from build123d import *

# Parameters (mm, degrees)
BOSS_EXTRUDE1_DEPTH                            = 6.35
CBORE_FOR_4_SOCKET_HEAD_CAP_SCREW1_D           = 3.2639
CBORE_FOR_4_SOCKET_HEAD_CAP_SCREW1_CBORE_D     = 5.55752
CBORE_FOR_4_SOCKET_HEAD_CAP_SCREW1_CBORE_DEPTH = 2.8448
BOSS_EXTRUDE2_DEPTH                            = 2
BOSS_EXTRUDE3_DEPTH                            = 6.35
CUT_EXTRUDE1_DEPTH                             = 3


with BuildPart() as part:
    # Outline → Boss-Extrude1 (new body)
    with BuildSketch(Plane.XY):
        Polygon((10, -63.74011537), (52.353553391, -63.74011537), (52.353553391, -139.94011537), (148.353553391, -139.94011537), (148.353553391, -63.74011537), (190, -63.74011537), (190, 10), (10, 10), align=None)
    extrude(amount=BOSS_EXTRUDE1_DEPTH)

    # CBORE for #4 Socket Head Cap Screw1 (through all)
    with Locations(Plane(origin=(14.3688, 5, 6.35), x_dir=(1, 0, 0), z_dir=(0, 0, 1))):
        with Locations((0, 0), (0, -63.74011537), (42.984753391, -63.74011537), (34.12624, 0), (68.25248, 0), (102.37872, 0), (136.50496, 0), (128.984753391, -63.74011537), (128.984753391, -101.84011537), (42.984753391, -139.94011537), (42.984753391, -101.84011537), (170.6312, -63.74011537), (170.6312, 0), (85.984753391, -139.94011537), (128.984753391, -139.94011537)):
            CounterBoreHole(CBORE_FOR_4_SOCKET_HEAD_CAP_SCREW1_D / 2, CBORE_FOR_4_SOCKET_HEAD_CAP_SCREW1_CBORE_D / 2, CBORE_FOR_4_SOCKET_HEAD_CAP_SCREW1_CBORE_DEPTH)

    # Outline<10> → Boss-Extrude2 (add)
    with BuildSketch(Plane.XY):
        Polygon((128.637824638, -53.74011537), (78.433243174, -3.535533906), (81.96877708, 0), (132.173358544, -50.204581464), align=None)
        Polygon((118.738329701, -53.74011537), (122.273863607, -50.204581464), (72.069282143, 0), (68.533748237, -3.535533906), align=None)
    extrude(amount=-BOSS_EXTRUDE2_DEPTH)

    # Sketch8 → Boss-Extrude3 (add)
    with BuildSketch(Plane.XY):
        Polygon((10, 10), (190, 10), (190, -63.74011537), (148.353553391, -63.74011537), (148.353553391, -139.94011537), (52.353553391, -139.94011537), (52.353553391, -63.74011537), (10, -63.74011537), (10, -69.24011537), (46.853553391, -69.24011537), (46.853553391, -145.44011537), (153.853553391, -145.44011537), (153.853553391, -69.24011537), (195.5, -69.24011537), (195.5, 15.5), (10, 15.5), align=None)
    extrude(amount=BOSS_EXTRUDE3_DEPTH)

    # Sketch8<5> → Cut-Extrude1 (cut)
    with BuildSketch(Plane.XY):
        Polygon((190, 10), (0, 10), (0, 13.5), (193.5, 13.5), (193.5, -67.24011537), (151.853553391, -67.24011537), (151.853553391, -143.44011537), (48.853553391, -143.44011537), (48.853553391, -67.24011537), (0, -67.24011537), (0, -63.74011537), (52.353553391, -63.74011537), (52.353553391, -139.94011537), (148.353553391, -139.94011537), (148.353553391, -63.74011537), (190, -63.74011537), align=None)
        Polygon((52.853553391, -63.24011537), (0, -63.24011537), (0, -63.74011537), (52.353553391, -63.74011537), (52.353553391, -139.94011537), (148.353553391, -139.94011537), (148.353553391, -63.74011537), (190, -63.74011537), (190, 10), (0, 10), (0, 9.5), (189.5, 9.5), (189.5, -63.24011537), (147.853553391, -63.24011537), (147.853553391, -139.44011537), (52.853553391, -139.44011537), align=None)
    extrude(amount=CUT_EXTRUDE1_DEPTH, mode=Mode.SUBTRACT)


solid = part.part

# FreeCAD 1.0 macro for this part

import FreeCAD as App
import Part
import Sketcher

V = App.Vector
Q = App.Units.Quantity

doc = App.newDocument("Part")
body = doc.addObject("PartDesign::Body", "Body")

# Sketch on XY plane
sketch1 = body.newObject("Sketcher::SketchObject", "Sketch")
sketch1.AttachmentSupport = (doc.getObject("XY_Plane"), [""])
sketch1.MapMode = "FlatFace"
sketch1.addGeometry([
    Part.LineSegment(V(10, -64, 0), V(52, -64, 0)),  # 0
    Part.LineSegment(V(52, -64, 0), V(52, -140, 0)),  # 1
    Part.LineSegment(V(52, -140, 0), V(148, -140, 0)),  # 2
    Part.LineSegment(V(148, -140, 0), V(148, -64, 0)),  # 3
    Part.LineSegment(V(148, -64, 0), V(190, -64, 0)),  # 4
    Part.LineSegment(V(190, -64, 0), V(190, 10, 0)),  # 5
    Part.LineSegment(V(190, 10, 0), V(10, 10, 0)),  # 6
    Part.LineSegment(V(10, 10, 0), V(10, -64, 0)),  # 7
], False)
sketch1.addConstraint([
    Sketcher.Constraint("Coincident", 0, 2, 1, 1),
    Sketcher.Constraint("Coincident", 1, 2, 2, 1),
    Sketcher.Constraint("Coincident", 2, 2, 3, 1),
    Sketcher.Constraint("Coincident", 3, 2, 4, 1),
    Sketcher.Constraint("Coincident", 4, 2, 5, 1),
    Sketcher.Constraint("Coincident", 5, 2, 6, 1),
    Sketcher.Constraint("Coincident", 6, 2, 7, 1),
    Sketcher.Constraint("Coincident", 7, 2, 0, 1),
    Sketcher.Constraint("Horizontal", 0),
    Sketcher.Constraint("Vertical", 1),
    Sketcher.Constraint("Horizontal", 2),
    Sketcher.Constraint("Vertical", 3),
    Sketcher.Constraint("Horizontal", 4),
    Sketcher.Constraint("Vertical", 5),
    Sketcher.Constraint("Horizontal", 6),
    Sketcher.Constraint("Vertical", 7),
    Sketcher.Constraint("Horizontal", 0, 2, 3, 2),
    Sketcher.Constraint("DistanceX", 2, 1, 2, 2, 96.0),
    Sketcher.Constraint("DistanceX", 6, 2, 6, 1, 180.0),
    Sketcher.Constraint("DistanceY", 1, 2, 1, 1, 76.2),
    Sketcher.Constraint("DistanceX", -1, 1, 4, 2, 190.0),
    Sketcher.Constraint("DistanceY", -1, 1, 5, 2, 10.0),
    Sketcher.Constraint("DistanceX", 0, 1, 0, 2, 42.353553),
    Sketcher.Constraint("DistanceY", 5, 1, 5, 2, 73.740115),
])
pad1 = body.newObject("PartDesign::Pad", "Pad")
pad1.Profile = sketch1
pad1.Length = 6.35

# Sketch on XY plane
sketch2 = body.newObject("Sketcher::SketchObject", "Sketch001")
sketch2.AttachmentSupport = (doc.getObject("XY_Plane"), [""])
sketch2.MapMode = "FlatFace"
sketch2.AttachmentOffset = App.Placement(V(0, 0, 6.35), App.Rotation())
sketch2.addGeometry([
    Part.Circle(V(14.4, 5, 0), V(0, 0, 1), 1.6),  # 0
    Part.Circle(V(14.4, -58.7, 0), V(0, 0, 1), 1.6),  # 1
    Part.Circle(V(57.4, -58.7, 0), V(0, 0, 1), 1.6),  # 2
    Part.Circle(V(48.5, 5, 0), V(0, 0, 1), 1.6),  # 3
    Part.Circle(V(82.6, 5, 0), V(0, 0, 1), 1.6),  # 4
    Part.Circle(V(116.7, 5, 0), V(0, 0, 1), 1.6),  # 5
    Part.Circle(V(150.9, 5, 0), V(0, 0, 1), 1.6),  # 6
    Part.Circle(V(143.4, -58.7, 0), V(0, 0, 1), 1.6),  # 7
    Part.Circle(V(143.4, -96.8, 0), V(0, 0, 1), 1.6),  # 8
    Part.Circle(V(57.4, -134.9, 0), V(0, 0, 1), 1.6),  # 9
    Part.Circle(V(57.4, -96.8, 0), V(0, 0, 1), 1.6),  # 10
    Part.Circle(V(185, -58.7, 0), V(0, 0, 1), 1.6),  # 11
    Part.Circle(V(185, 5, 0), V(0, 0, 1), 1.6),  # 12
    Part.Circle(V(100.4, -134.9, 0), V(0, 0, 1), 1.6),  # 13
    Part.Circle(V(143.4, -134.9, 0), V(0, 0, 1), 1.6),  # 14
], False)
sketch2.addConstraint([
    Sketcher.Constraint("Equal", 0, 1),
    Sketcher.Constraint("Equal", 1, 2),
    Sketcher.Constraint("Equal", 2, 3),
    Sketcher.Constraint("Equal", 3, 4),
    Sketcher.Constraint("Equal", 4, 5),
    Sketcher.Constraint("Equal", 5, 6),
    Sketcher.Constraint("Equal", 6, 7),
    Sketcher.Constraint("Equal", 7, 8),
    Sketcher.Constraint("Equal", 8, 9),
    Sketcher.Constraint("Equal", 9, 10),
    Sketcher.Constraint("Equal", 10, 11),
    Sketcher.Constraint("Equal", 11, 12),
    Sketcher.Constraint("Equal", 12, 13),
    Sketcher.Constraint("Equal", 13, 14),
    Sketcher.Constraint("Horizontal", 1, 3, 2, 3),
    Sketcher.Constraint("Horizontal", 0, 3, 3, 3),
    Sketcher.Constraint("Horizontal", 3, 3, 4, 3),
    Sketcher.Constraint("Horizontal", 4, 3, 5, 3),
    Sketcher.Constraint("Horizontal", 5, 3, 6, 3),
    Sketcher.Constraint("Horizontal", 2, 3, 7, 3),
    Sketcher.Constraint("Horizontal", 8, 3, 10, 3),
    Sketcher.Constraint("Horizontal", 7, 3, 11, 3),
    Sketcher.Constraint("Horizontal", 6, 3, 12, 3),
    Sketcher.Constraint("Horizontal", 9, 3, 13, 3),
    Sketcher.Constraint("Horizontal", 13, 3, 14, 3),
    Sketcher.Constraint("Vertical", 0, 3, 1, 3),
    Sketcher.Constraint("Vertical", 7, 3, 8, 3),
    Sketcher.Constraint("Vertical", 2, 3, 9, 3),
    Sketcher.Constraint("Vertical", 9, 3, 10, 3),
    Sketcher.Constraint("Vertical", 11, 3, 12, 3),
    Sketcher.Constraint("Vertical", 8, 3, 14, 3),
    Sketcher.Constraint("DistanceY", -1, 1, 0, 3, 5.0),
    Sketcher.Constraint("DistanceX", -1, 1, 11, 3, 185.0),
    Sketcher.Constraint("DistanceX", 2, 3, 7, 3, 86.0),
    Sketcher.Constraint("DistanceX", 9, 3, 13, 3, 43.0),
    Sketcher.Constraint("Diameter", 0, 3.2639),
    Sketcher.Constraint("DistanceY", 8, 3, 7, 3, 38.1),
    Sketcher.Constraint("DistanceY", 9, 3, 2, 3, 76.2),
    Sketcher.Constraint("DistanceX", -1, 1, 0, 3, 14.3688),
    Sketcher.Constraint("DistanceX", -1, 1, 3, 3, 48.49504),
    Sketcher.Constraint("DistanceX", -1, 1, 4, 3, 82.62128),
    Sketcher.Constraint("DistanceX", -1, 1, 5, 3, 116.74752),
    Sketcher.Constraint("DistanceX", -1, 1, 6, 3, 150.87376),
    Sketcher.Constraint("DistanceY", 1, 3, -1, 1, 58.740115),
    Sketcher.Constraint("DistanceX", -1, 1, 2, 3, 57.353553),
])
doc.recompute()
hole = body.newObject("PartDesign::Hole", "Hole")
hole.Profile = sketch2
hole.ThreadType = "None"
hole.Diameter = 3.2639
hole.DepthType = "ThroughAll"
hole.HoleCutType = "Counterbore"
hole.HoleCutDiameter = 5.55752
hole.HoleCutDepth = 2.8448

# Sketch on XY plane
sketch3 = body.newObject("Sketcher::SketchObject", "Sketch002")
sketch3.AttachmentSupport = (doc.getObject("XY_Plane"), [""])
sketch3.MapMode = "FlatFace"
sketch3.addGeometry([
    Part.LineSegment(V(78, -4, 0), V(129, -54, 0)),  # 0
    Part.LineSegment(V(129, -54, 0), V(132, -50, 0)),  # 1
    Part.LineSegment(V(132, -50, 0), V(82, 0, 0)),  # 2
    Part.LineSegment(V(82, 0, 0), V(78, -4, 0)),  # 3
    Part.LineSegment(V(119, -54, 0), V(122, -50, 0)),  # 4
    Part.LineSegment(V(122, -50, 0), V(72, 0, 0)),  # 5
    Part.LineSegment(V(72, 0, 0), V(69, -4, 0)),  # 6
    Part.LineSegment(V(69, -4, 0), V(119, -54, 0)),  # 7
], False)
sketch3.addConstraint([
    Sketcher.Constraint("Coincident", 0, 2, 1, 1),
    Sketcher.Constraint("Coincident", 1, 2, 2, 1),
    Sketcher.Constraint("Coincident", 2, 2, 3, 1),
    Sketcher.Constraint("Coincident", 3, 2, 0, 1),
    Sketcher.Constraint("Coincident", 4, 2, 5, 1),
    Sketcher.Constraint("Coincident", 5, 2, 6, 1),
    Sketcher.Constraint("Coincident", 6, 2, 7, 1),
    Sketcher.Constraint("Coincident", 7, 2, 4, 1),
    Sketcher.Constraint("PointOnObject", 2, 2, -1),
    Sketcher.Constraint("PointOnObject", 5, 2, -1),
    Sketcher.Constraint("Perpendicular", 0, 1),
    Sketcher.Constraint("Perpendicular", 1, 2),
    Sketcher.Constraint("Perpendicular", 2, 3),
    Sketcher.Constraint("Parallel", 3, 4),
    Sketcher.Constraint("Perpendicular", 4, 5),
    Sketcher.Constraint("Perpendicular", 5, 6),
    Sketcher.Constraint("Perpendicular", 6, 7),
    Sketcher.Constraint("Horizontal", 1, 2, 4, 2),
    Sketcher.Constraint("Horizontal", 3, 2, 6, 2),
    Sketcher.Constraint("Angle", 0, Q("-45 deg")),
    Sketcher.Constraint("Distance", 0, 71.0),
    Sketcher.Constraint("Distance", 1, 5.0),
    Sketcher.Constraint("DistanceX", -1, 1, 1, 2, 132.173359),
    Sketcher.Constraint("DistanceX", -1, 1, 6, 2, 68.533748),
])
pad2 = body.newObject("PartDesign::Pad", "Pad001")
pad2.Profile = sketch3
pad2.Length = 2
pad2.Reversed = True

# Sketch on XY plane
sketch4 = body.newObject("Sketcher::SketchObject", "Sketch003")
sketch4.AttachmentSupport = (doc.getObject("XY_Plane"), [""])
sketch4.MapMode = "FlatFace"
sketch4.addGeometry([
    Part.LineSegment(V(10, 10, 0), V(190, 10, 0)),  # 0
    Part.LineSegment(V(190, 10, 0), V(190, -64, 0)),  # 1
    Part.LineSegment(V(190, -64, 0), V(148, -64, 0)),  # 2
    Part.LineSegment(V(148, -64, 0), V(148, -140, 0)),  # 3
    Part.LineSegment(V(148, -140, 0), V(52, -140, 0)),  # 4
    Part.LineSegment(V(52, -140, 0), V(52, -64, 0)),  # 5
    Part.LineSegment(V(52, -64, 0), V(10, -64, 0)),  # 6
    Part.LineSegment(V(10, -64, 0), V(10, -69, 0)),  # 7
    Part.LineSegment(V(10, -69, 0), V(47, -69, 0)),  # 8
    Part.LineSegment(V(47, -69, 0), V(47, -145, 0)),  # 9
    Part.LineSegment(V(47, -145, 0), V(154, -145, 0)),  # 10
    Part.LineSegment(V(154, -145, 0), V(154, -69, 0)),  # 11
    Part.LineSegment(V(154, -69, 0), V(196, -69, 0)),  # 12
    Part.LineSegment(V(196, -69, 0), V(196, 16, 0)),  # 13
    Part.LineSegment(V(196, 16, 0), V(10, 16, 0)),  # 14
    Part.LineSegment(V(10, 16, 0), V(10, 10, 0)),  # 15
], False)
sketch4.addConstraint([
    Sketcher.Constraint("Coincident", 0, 2, 1, 1),
    Sketcher.Constraint("Coincident", 1, 2, 2, 1),
    Sketcher.Constraint("Coincident", 2, 2, 3, 1),
    Sketcher.Constraint("Coincident", 3, 2, 4, 1),
    Sketcher.Constraint("Coincident", 4, 2, 5, 1),
    Sketcher.Constraint("Coincident", 5, 2, 6, 1),
    Sketcher.Constraint("Coincident", 6, 2, 7, 1),
    Sketcher.Constraint("Coincident", 7, 2, 8, 1),
    Sketcher.Constraint("Coincident", 8, 2, 9, 1),
    Sketcher.Constraint("Coincident", 9, 2, 10, 1),
    Sketcher.Constraint("Coincident", 10, 2, 11, 1),
    Sketcher.Constraint("Coincident", 11, 2, 12, 1),
    Sketcher.Constraint("Coincident", 12, 2, 13, 1),
    Sketcher.Constraint("Coincident", 13, 2, 14, 1),
    Sketcher.Constraint("Coincident", 14, 2, 15, 1),
    Sketcher.Constraint("Coincident", 15, 2, 0, 1),
    Sketcher.Constraint("Horizontal", 0),
    Sketcher.Constraint("Vertical", 1),
    Sketcher.Constraint("Horizontal", 2),
    Sketcher.Constraint("Vertical", 3),
    Sketcher.Constraint("Horizontal", 4),
    Sketcher.Constraint("Vertical", 5),
    Sketcher.Constraint("Horizontal", 6),
    Sketcher.Constraint("Vertical", 7),
    Sketcher.Constraint("Horizontal", 8),
    Sketcher.Constraint("Vertical", 9),
    Sketcher.Constraint("Horizontal", 10),
    Sketcher.Constraint("Vertical", 11),
    Sketcher.Constraint("Horizontal", 12),
    Sketcher.Constraint("Vertical", 13),
    Sketcher.Constraint("Horizontal", 14),
    Sketcher.Constraint("Vertical", 15),
    Sketcher.Constraint("Horizontal", 2, 2, 5, 2),
    Sketcher.Constraint("Horizontal", 8, 2, 11, 2),
    Sketcher.Constraint("Vertical", 7, 2, 14, 2),
    Sketcher.Constraint("Equal", 2, 12),
    Sketcher.Constraint("Equal", 5, 9),
    Sketcher.Constraint("Equal", 7, 15),
    Sketcher.Constraint("DistanceX", 0, 1, 0, 2, 180.0),
    Sketcher.Constraint("DistanceX", 4, 2, 4, 1, 96.0),
    Sketcher.Constraint("DistanceX", 10, 1, 10, 2, 107.0),
    Sketcher.Constraint("DistanceX", 14, 2, 14, 1, 185.5),
    Sketcher.Constraint("DistanceY", 3, 2, 3, 1, 76.2),
    Sketcher.Constraint("DistanceY", 7, 2, 7, 1, 5.5),
    Sketcher.Constraint("DistanceX", -1, 1, 0, 2, 190.0),
    Sketcher.Constraint("DistanceY", -1, 1, 0, 2, 10.0),
    Sketcher.Constraint("DistanceX", 2, 2, 2, 1, 41.646447),
    Sketcher.Constraint("DistanceY", 1, 2, 1, 1, 73.740115),
])
pad3 = body.newObject("PartDesign::Pad", "Pad002")
pad3.Profile = sketch4
pad3.Length = 6.35

# Sketch on XY plane
sketch5 = body.newObject("Sketcher::SketchObject", "Sketch004")
sketch5.AttachmentSupport = (doc.getObject("XY_Plane"), [""])
sketch5.MapMode = "FlatFace"
sketch5.addGeometry([
    Part.LineSegment(V(0, 13.5, 0), V(0, 9.5, 0)),  # 0
    Part.LineSegment(V(0, 9.5, 0), V(189.5, 9.5, 0)),  # 1
    Part.LineSegment(V(189.5, 9.5, 0), V(189.5, -63.2, 0)),  # 2
    Part.LineSegment(V(189.5, -63.2, 0), V(147.9, -63.2, 0)),  # 3
    Part.LineSegment(V(147.9, -63.2, 0), V(147.9, -139.4, 0)),  # 4
    Part.LineSegment(V(147.9, -139.4, 0), V(52.9, -139.4, 0)),  # 5
    Part.LineSegment(V(52.9, -139.4, 0), V(52.9, -63.2, 0)),  # 6
    Part.LineSegment(V(52.9, -63.2, 0), V(0, -63.2, 0)),  # 7
    Part.LineSegment(V(0, -63.2, 0), V(0, -67.2, 0)),  # 8
    Part.LineSegment(V(0, -67.2, 0), V(48.9, -67.2, 0)),  # 9
    Part.LineSegment(V(48.9, -67.2, 0), V(48.9, -143.4, 0)),  # 10
    Part.LineSegment(V(48.9, -143.4, 0), V(151.9, -143.4, 0)),  # 11
    Part.LineSegment(V(151.9, -143.4, 0), V(151.9, -67.2, 0)),  # 12
    Part.LineSegment(V(151.9, -67.2, 0), V(193.5, -67.2, 0)),  # 13
    Part.LineSegment(V(193.5, -67.2, 0), V(193.5, 13.5, 0)),  # 14
    Part.LineSegment(V(193.5, 13.5, 0), V(0, 13.5, 0)),  # 15
], False)
sketch5.addConstraint([
    Sketcher.Constraint("Coincident", 0, 2, 1, 1),
    Sketcher.Constraint("Coincident", 1, 2, 2, 1),
    Sketcher.Constraint("Coincident", 2, 2, 3, 1),
    Sketcher.Constraint("Coincident", 3, 2, 4, 1),
    Sketcher.Constraint("Coincident", 4, 2, 5, 1),
    Sketcher.Constraint("Coincident", 5, 2, 6, 1),
    Sketcher.Constraint("Coincident", 6, 2, 7, 1),
    Sketcher.Constraint("Coincident", 7, 2, 8, 1),
    Sketcher.Constraint("Coincident", 8, 2, 9, 1),
    Sketcher.Constraint("Coincident", 9, 2, 10, 1),
    Sketcher.Constraint("Coincident", 10, 2, 11, 1),
    Sketcher.Constraint("Coincident", 11, 2, 12, 1),
    Sketcher.Constraint("Coincident", 12, 2, 13, 1),
    Sketcher.Constraint("Coincident", 13, 2, 14, 1),
    Sketcher.Constraint("Coincident", 14, 2, 15, 1),
    Sketcher.Constraint("Coincident", 15, 2, 0, 1),
    Sketcher.Constraint("Vertical", 0),
    Sketcher.Constraint("Horizontal", 1),
    Sketcher.Constraint("Vertical", 2),
    Sketcher.Constraint("Horizontal", 3),
    Sketcher.Constraint("Vertical", 4),
    Sketcher.Constraint("Horizontal", 5),
    Sketcher.Constraint("Vertical", 6),
    Sketcher.Constraint("Horizontal", 7),
    Sketcher.Constraint("Vertical", 8),
    Sketcher.Constraint("Horizontal", 9),
    Sketcher.Constraint("Vertical", 10),
    Sketcher.Constraint("Horizontal", 11),
    Sketcher.Constraint("Vertical", 12),
    Sketcher.Constraint("Horizontal", 13),
    Sketcher.Constraint("Vertical", 14),
    Sketcher.Constraint("Horizontal", 15),
    Sketcher.Constraint("PointOnObject", 0, 2, -2),
    Sketcher.Constraint("PointOnObject", 7, 2, -2),
    Sketcher.Constraint("Horizontal", 3, 2, 6, 2),
    Sketcher.Constraint("Horizontal", 9, 2, 12, 2),
    Sketcher.Constraint("Equal", 3, 13),
    Sketcher.Constraint("Equal", 0, 8),
    Sketcher.Constraint("Equal", 6, 10),
    Sketcher.Constraint("DistanceX", 5, 2, 5, 1, 95.0),
    Sketcher.Constraint("DistanceX", 11, 1, 11, 2, 103.0),
    Sketcher.Constraint("DistanceY", 0, 2, 0, 1, 4.0),
    Sketcher.Constraint("DistanceX", 1, 1, 1, 2, 189.5),
    Sketcher.Constraint("DistanceX", 15, 2, 15, 1, 193.5),
    Sketcher.Constraint("DistanceY", 4, 2, 4, 1, 76.2),
    Sketcher.Constraint("DistanceY", -1, 1, 0, 2, 9.5),
    Sketcher.Constraint("DistanceX", 3, 2, 3, 1, 41.646447),
    Sketcher.Constraint("DistanceY", 2, 2, 2, 1, 72.740115),
])
pocket1 = body.newObject("PartDesign::Pocket", "Pocket")
pocket1.Profile = sketch5
pocket1.Length = 3
pocket1.Reversed = True

doc.recompute()
